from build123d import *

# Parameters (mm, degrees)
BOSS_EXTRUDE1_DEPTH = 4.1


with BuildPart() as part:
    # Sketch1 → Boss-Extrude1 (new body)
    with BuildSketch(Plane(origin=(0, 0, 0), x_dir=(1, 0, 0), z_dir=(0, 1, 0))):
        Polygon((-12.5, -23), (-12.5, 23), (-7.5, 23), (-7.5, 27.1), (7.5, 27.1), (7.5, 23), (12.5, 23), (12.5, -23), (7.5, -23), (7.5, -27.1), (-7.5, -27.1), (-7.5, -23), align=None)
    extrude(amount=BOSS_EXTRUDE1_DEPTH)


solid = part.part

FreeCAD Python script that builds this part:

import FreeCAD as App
import Part
import Sketcher
Q = App.Units.Quantity

doc = App.newDocument("Part")
body = doc.addObject("PartDesign::Body", "Body")

# Sketch on XZ plane
sketch1 = body.newObject("Sketcher::SketchObject", "Sketch")
sketch1.AttachmentSupport = (doc.getObject("XZ_Plane"), [""])
sketch1.MapMode = "FlatFace"
sketch1.addGeometry([
    Part.LineSegment(App.Vector(-12.5, -23, 0), App.Vector(-12.5, 23, 0)),  # 0
    Part.LineSegment(App.Vector(-12.5, 23, 0), App.Vector(-7.5, 23, 0)),  # 1
    Part.LineSegment(App.Vector(-7.5, 23, 0), App.Vector(-7.5, 27.1, 0)),  # 2
    Part.LineSegment(App.Vector(-7.5, 27.1, 0), App.Vector(7.5, 27.1, 0)),  # 3
    Part.LineSegment(App.Vector(7.5, 27.1, 0), App.Vector(7.5, 23, 0)),  # 4
    Part.LineSegment(App.Vector(7.5, 23, 0), App.Vector(12.5, 23, 0)),  # 5
    Part.LineSegment(App.Vector(12.5, 23, 0), App.Vector(12.5, -23, 0)),  # 6
    Part.LineSegment(App.Vector(12.5, -23, 0), App.Vector(7.5, -23, 0)),  # 7
    Part.LineSegment(App.Vector(7.5, -23, 0), App.Vector(7.5, -27.1, 0)),  # 8
    Part.LineSegment(App.Vector(7.5, -27.1, 0), App.Vector(-7.5, -27.1, 0)),  # 9
    Part.LineSegment(App.Vector(-7.5, -27.1, 0), App.Vector(-7.5, -23, 0)),  # 10
    Part.LineSegment(App.Vector(-7.5, -23, 0), App.Vector(-12.5, -23, 0)),  # 11
], False)
sketch1.addConstraint([
    Sketcher.Constraint("Coincident", 0, 2, 1, 1),
    Sketcher.Constraint("Coincident", 1, 2, 2, 1),
    Sketcher.Constraint("Coincident", 2, 2, 3, 1),
    Sketcher.Constraint("Coincident", 3, 2, 4, 1),
    Sketcher.Constraint("Coincident", 4, 2, 5, 1),
    Sketcher.Constraint("Coincident", 5, 2, 6, 1),
    Sketcher.Constraint("Coincident", 6, 2, 7, 1),
    Sketcher.Constraint("Coincident", 7, 2, 8, 1),
    Sketcher.Constraint("Coincident", 8, 2, 9, 1),
    Sketcher.Constraint("Coincident", 9, 2, 10, 1),
    Sketcher.Constraint("Coincident", 10, 2, 11, 1),
    Sketcher.Constraint("Coincident", 11, 2, 0, 1),
    Sketcher.Constraint("Vertical", 0),
    Sketcher.Constraint("Horizontal", 1),
    Sketcher.Constraint("Vertical", 2),
    Sketcher.Constraint("Horizontal", 3),
    Sketcher.Constraint("Vertical", 4),
    Sketcher.Constraint("Horizontal", 5),
    Sketcher.Constraint("Vertical", 6),
    Sketcher.Constraint("Horizontal", 7),
    Sketcher.Constraint("Vertical", 8),
    Sketcher.Constraint("Horizontal", 9),
    Sketcher.Constraint("Vertical", 10),
    Sketcher.Constraint("Horizontal", 11),
    Sketcher.Constraint("Symmetric", 0, 2, 6, 2, -1, 1),
    Sketcher.Constraint("Symmetric", 2, 2, 8, 2, -1, 1),
    Sketcher.Constraint("Symmetric", 4, 2, 10, 2, -1, 1),
    Sketcher.Constraint("Symmetric", 1, 2, 4, 2, -2),
    Sketcher.Constraint("DistanceX", 1, 1, 1, 2, Q("5 mm")),
    Sketcher.Constraint("DistanceX", 3, 1, 3, 2, Q("15 mm")),
    Sketcher.Constraint("DistanceY", 0, 1, 0, 2, Q("46 mm")),
    Sketcher.Constraint("DistanceY", 2, 1, 2, 2, Q("4.1 mm")),
])
pad1 = body.newObject("PartDesign::Pad", "Pad")
pad1.Profile = sketch1
pad1.Length = 4.1
pad1.Reversed = True

doc.recompute()
